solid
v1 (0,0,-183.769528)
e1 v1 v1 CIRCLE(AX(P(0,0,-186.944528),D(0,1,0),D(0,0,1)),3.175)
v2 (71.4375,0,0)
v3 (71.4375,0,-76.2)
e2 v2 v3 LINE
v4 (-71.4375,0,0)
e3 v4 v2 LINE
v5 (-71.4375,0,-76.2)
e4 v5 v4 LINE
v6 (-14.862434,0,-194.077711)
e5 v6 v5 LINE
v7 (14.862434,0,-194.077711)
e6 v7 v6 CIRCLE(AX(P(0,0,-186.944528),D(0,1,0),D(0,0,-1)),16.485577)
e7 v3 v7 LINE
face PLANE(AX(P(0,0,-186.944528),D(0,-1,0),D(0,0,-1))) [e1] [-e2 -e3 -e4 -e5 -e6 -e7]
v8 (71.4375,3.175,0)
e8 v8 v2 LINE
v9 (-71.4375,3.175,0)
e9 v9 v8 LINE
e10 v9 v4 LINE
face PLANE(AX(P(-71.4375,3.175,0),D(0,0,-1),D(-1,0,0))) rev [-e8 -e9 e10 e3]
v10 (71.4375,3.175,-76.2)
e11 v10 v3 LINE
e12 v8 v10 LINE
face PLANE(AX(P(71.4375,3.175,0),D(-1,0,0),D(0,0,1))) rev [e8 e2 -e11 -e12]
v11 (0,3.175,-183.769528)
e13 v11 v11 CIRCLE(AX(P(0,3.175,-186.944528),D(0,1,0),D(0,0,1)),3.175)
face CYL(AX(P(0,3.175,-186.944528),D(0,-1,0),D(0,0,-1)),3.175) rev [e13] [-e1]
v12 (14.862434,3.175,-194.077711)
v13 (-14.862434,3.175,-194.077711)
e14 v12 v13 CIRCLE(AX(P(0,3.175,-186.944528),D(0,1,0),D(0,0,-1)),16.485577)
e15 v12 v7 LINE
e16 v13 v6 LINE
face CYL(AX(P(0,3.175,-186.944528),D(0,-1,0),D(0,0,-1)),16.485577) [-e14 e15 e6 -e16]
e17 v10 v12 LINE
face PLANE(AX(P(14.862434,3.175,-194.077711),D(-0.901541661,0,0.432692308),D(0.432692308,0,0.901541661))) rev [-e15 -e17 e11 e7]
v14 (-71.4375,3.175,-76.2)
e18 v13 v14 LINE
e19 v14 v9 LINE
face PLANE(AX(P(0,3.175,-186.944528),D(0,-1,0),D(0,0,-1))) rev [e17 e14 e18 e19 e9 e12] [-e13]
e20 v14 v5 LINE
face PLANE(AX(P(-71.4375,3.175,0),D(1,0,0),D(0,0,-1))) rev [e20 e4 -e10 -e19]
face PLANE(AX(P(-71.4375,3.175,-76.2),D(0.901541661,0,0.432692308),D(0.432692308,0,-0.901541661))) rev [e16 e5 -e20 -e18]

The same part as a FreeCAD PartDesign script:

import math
import FreeCAD as App
import Part
import Sketcher

V = App.Vector
Q = App.Units.Quantity

doc = App.newDocument("Part")
body = doc.addObject("PartDesign::Body", "Body")

sketch1 = body.newObject("Sketcher::SketchObject", "Sketch")
sketch1.AttachmentSupport = (doc.getObject("XZ_Plane"), [""])
sketch1.MapMode = "FlatFace"
sketch1.addGeometry([
    Part.LineSegment(V(-71.4, 0, 0), V(71.4, 0, 0)),
    Part.LineSegment(V(71.4, 0, 0), V(71.4, -76.2, 0)),
    Part.LineSegment(V(71.4, -76.2, 0), V(14.9, -194.1, 0)),
    Part.ArcOfCircle(Part.Circle(V(0, -186.9, 0), V(0, 0, 1), 16.5), math.radians(-154), math.radians(-26)),
    Part.LineSegment(V(-14.9, -194.1, 0), V(-71.4, -76.2, 0)),
    Part.LineSegment(V(-71.4, -76.2, 0), V(-71.4, 0, 0)),
    Part.Circle(V(0, -186.9, 0), V(0, 0, 1), 3.2),
], False)
sketch1.addConstraint([
    Sketcher.Constraint("Coincident", 0, 2, 1, 1),
    Sketcher.Constraint("Coincident", 1, 2, 2, 1),
    Sketcher.Constraint("Tangent", 2, 2, 3, 2),
    Sketcher.Constraint("Tangent", 3, 1, 4, 1),
    Sketcher.Constraint("Coincident", 4, 2, 5, 1),
    Sketcher.Constraint("Coincident", 5, 2, 0, 1),
    Sketcher.Constraint("Horizontal", 0),
    Sketcher.Constraint("Vertical", 1),
    Sketcher.Constraint("Vertical", 5),
    Sketcher.Constraint("Coincident", 6, 3, 3, 3),
    Sketcher.Constraint("Symmetric", 0, 2, 5, 2, -1, 1),
    Sketcher.Constraint("Symmetric", 2, 2, 3, 1, -2),
    Sketcher.Constraint("Diameter", 6, Q("0.25 in")),
    Sketcher.Constraint("DistanceY", 1, 2, 1, 1, Q("3 in")),
    Sketcher.Constraint("DistanceX", 0, 1, 0, 2, Q("5.625 in")),
    Sketcher.Constraint("Radius", 3, 16.485577),
    Sketcher.Constraint("DistanceY", 3, 3, -1, 1, 186.944528),
])
pad1 = body.newObject("PartDesign::Pad", "Pad")
pad1.Profile = sketch1
pad1.Length = Q("0.125 in")
pad1.Reversed = True

doc.recompute()
